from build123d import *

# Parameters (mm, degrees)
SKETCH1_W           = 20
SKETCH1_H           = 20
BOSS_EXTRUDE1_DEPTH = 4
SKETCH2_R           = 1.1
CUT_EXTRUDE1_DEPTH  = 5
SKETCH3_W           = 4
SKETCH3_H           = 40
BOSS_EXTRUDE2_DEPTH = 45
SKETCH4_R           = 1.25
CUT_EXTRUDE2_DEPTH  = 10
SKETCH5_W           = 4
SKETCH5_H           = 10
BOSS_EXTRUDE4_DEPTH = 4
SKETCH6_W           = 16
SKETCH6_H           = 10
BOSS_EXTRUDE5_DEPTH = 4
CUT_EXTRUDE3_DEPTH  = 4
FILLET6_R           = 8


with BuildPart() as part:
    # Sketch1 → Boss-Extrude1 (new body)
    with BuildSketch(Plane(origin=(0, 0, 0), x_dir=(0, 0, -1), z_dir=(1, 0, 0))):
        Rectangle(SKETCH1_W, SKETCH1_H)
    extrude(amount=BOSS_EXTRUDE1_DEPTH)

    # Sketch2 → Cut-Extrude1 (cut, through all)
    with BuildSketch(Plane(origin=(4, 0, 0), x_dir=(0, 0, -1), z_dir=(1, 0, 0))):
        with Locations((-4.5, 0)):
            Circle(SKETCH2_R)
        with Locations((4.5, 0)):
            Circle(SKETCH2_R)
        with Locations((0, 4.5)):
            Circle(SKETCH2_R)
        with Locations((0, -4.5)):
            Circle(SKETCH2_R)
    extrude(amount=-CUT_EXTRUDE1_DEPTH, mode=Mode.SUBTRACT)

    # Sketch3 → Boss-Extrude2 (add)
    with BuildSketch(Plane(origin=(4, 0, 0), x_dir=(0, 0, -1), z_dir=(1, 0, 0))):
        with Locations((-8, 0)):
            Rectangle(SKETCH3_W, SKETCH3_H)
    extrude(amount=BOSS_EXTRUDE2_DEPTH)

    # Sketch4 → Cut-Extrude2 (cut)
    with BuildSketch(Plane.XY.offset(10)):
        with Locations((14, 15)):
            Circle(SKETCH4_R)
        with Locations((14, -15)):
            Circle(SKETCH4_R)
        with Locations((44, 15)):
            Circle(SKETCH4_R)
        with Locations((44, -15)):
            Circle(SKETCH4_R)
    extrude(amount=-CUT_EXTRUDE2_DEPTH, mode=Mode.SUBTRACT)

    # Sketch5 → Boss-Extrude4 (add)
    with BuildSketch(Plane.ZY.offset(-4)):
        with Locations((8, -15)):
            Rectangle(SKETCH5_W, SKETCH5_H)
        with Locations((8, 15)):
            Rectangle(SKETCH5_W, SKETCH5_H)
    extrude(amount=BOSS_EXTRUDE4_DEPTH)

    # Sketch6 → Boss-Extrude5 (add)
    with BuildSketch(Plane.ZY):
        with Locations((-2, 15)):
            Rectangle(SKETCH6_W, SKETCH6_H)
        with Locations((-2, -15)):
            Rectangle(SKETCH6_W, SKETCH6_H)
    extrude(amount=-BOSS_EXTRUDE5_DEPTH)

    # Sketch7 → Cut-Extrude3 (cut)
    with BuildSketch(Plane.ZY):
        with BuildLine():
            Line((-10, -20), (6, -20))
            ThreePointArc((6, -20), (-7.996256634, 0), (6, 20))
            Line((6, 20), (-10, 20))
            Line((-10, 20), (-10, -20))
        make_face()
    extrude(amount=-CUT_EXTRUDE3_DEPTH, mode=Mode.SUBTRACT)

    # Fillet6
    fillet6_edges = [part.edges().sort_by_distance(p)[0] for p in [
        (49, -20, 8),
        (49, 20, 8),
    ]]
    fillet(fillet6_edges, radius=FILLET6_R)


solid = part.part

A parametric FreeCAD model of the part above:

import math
import FreeCAD as App
import Part
import Sketcher


def edges_at(feature, points):
    """Names of the edges that pass closest to the given points."""
    edges = feature.Shape.Edges
    near = lambda p: min(range(len(edges)), key=lambda i: edges[i].distToShape(Part.Vertex(*p))[0])
    return sorted({f"Edge{near(p) + 1}" for p in points})


def add_polygon(sketch, points):
    """Adds a closed chain of lines whose ends are joined by coincident constraints."""
    first, n = sketch.GeometryCount, len(points)
    for a, b in zip(points, points[1:] + points[:1]):
        sketch.addGeometry(Part.LineSegment(App.Vector(*a, 0), App.Vector(*b, 0)), False)
    for i in range(n):
        sketch.addConstraint(Sketcher.Constraint("Coincident", first + i, 2, first + (i + 1) % n, 1))

doc = App.newDocument("Part")
params = doc.addObject("Spreadsheet::Sheet", "Params")
for row, (alias, value) in enumerate([
    ("sketch1_width", "20 mm"),
    ("pad1_length", "4 mm"),
    ("sketch2_diameter", "2.2 mm"),
    ("sketch3_width", "40 mm"),
    ("sketch3_height", "4 mm"),
    ("pad2_length", "45 mm"),
    ("sketch4_diameter", "2.5 mm"),
    ("pocket2_length", "10 mm"),
    ("sketch5_width", "10 mm"),
    ("sketch5_height", "4 mm"),
    ("pad3_length", "4 mm"),
    ("sketch6_width", "10 mm"),
    ("sketch6_height", "16 mm"),
    ("pad4_length", "4 mm"),
    ("sketch7_width", "40 mm"),
    ("sketch7_height", "16 mm"),
    ("pocket3_length", "4 mm"),
    ("fillet_radius", "8 mm"),
], start=1):
    params.set(f"A{row}", alias)
    params.set(f"B{row}", "=" + value)
    params.setAlias(f"B{row}", alias)

body = doc.addObject("PartDesign::Body", "Body")

# Sketch on YZ plane
sketch1 = body.newObject("Sketcher::SketchObject", "Sketch")
sketch1.AttachmentSupport = (doc.getObject("YZ_Plane"), [""])
sketch1.MapMode = "FlatFace"
add_polygon(sketch1, [(10, 10), (-10, 10), (-10, -10), (10, -10)])  # lines 0-3
sketch1.addConstraint([
    Sketcher.Constraint("Horizontal", 0),
    Sketcher.Constraint("Vertical", 1),
    Sketcher.Constraint("Horizontal", 2),
    Sketcher.Constraint("Vertical", 3),
    Sketcher.Constraint("Symmetric", 0, 2, 2, 2, -1, 1),
    Sketcher.Constraint("Equal", 2, 1),
    Sketcher.Constraint("DistanceX", 0, 2, 0, 1, 20.0),
])
sketch1.setExpression("Constraints[10]", "Params.sketch1_width")
pad1 = body.newObject("PartDesign::Pad", "Pad")
pad1.Profile = sketch1
pad1.setExpression("Length", "Params.pad1_length")

# Sketch on YZ plane
sketch2 = body.newObject("Sketcher::SketchObject", "Sketch001")
sketch2.AttachmentSupport = (doc.getObject("YZ_Plane"), [""])
sketch2.MapMode = "FlatFace"
sketch2.AttachmentOffset = App.Placement(App.Vector(0, 0, 4), App.Rotation())
sketch2.addGeometry([
    Part.Circle(App.Vector(0, 4.5, 0), App.Vector(0, 0, 1), 1.1),
    Part.Circle(App.Vector(0, -4.5, 0), App.Vector(0, 0, 1), 1.1),
    Part.Circle(App.Vector(4.5, 0, 0), App.Vector(0, 0, 1), 1.1),
    Part.Circle(App.Vector(-4.5, 0, 0), App.Vector(0, 0, 1), 1.1),
], False)
sketch2.addConstraint([
    Sketcher.Constraint("Equal", 0, 1),
    Sketcher.Constraint("Equal", 1, 2),
    Sketcher.Constraint("Equal", 2, 3),
    Sketcher.Constraint("Symmetric", 0, 3, 1, 3, -1, 1),
    Sketcher.Constraint("Symmetric", 2, 3, 3, 3, -1, 1),
    Sketcher.Constraint("PointOnObject", 0, 3, -2),
    Sketcher.Constraint("PointOnObject", 2, 3, -1),
    Sketcher.Constraint("Diameter", 0, 2.2),
    Sketcher.Constraint("DistanceY", 1, 3, 0, 3, 9.0),
    Sketcher.Constraint("DistanceX", 3, 3, 2, 3, 9.0),
])
sketch2.setExpression("Constraints[7]", "Params.sketch2_diameter")
pocket1 = body.newObject("PartDesign::Pocket", "Pocket")
pocket1.Profile = sketch2
pocket1.Type = "ThroughAll"

# Sketch on YZ plane
sketch3 = body.newObject("Sketcher::SketchObject", "Sketch002")
sketch3.AttachmentSupport = (doc.getObject("YZ_Plane"), [""])
sketch3.MapMode = "FlatFace"
sketch3.AttachmentOffset = App.Placement(App.Vector(0, 0, 4), App.Rotation())
add_polygon(sketch3, [(20, 10), (-20, 10), (-20, 6), (20, 6)])  # lines 0-3
sketch3.addConstraint([
    Sketcher.Constraint("Horizontal", 0),
    Sketcher.Constraint("Vertical", 1),
    Sketcher.Constraint("Horizontal", 2),
    Sketcher.Constraint("Vertical", 3),
    Sketcher.Constraint("DistanceX", 0, 2, 0, 1, 40.0),
    Sketcher.Constraint("DistanceY", 1, 2, 1, 1, 4.0),
    Sketcher.Constraint("DistanceX", 0, 2, -1, 1, 20.0),
    Sketcher.Constraint("DistanceY", -1, 1, 0, 2, 10.0),
])
sketch3.setExpression("Constraints[8]", "Params.sketch3_width")
sketch3.setExpression("Constraints[9]", "Params.sketch3_height")
pad2 = body.newObject("PartDesign::Pad", "Pad001")
pad2.Profile = sketch3
pad2.setExpression("Length", "Params.pad2_length")

# Sketch on XY plane
sketch4 = body.newObject("Sketcher::SketchObject", "Sketch003")
sketch4.AttachmentSupport = (doc.getObject("XY_Plane"), [""])
sketch4.MapMode = "FlatFace"
sketch4.AttachmentOffset = App.Placement(App.Vector(0, 0, 10), App.Rotation())
sketch4.addGeometry([
    Part.Circle(App.Vector(14, 15, 0), App.Vector(0, 0, 1), 1.25),
    Part.Circle(App.Vector(14, -15, 0), App.Vector(0, 0, 1), 1.25),
    Part.Circle(App.Vector(44, 15, 0), App.Vector(0, 0, 1), 1.25),
    Part.Circle(App.Vector(44, -15, 0), App.Vector(0, 0, 1), 1.25),
], False)
sketch4.addConstraint([
    Sketcher.Constraint("Equal", 0, 1),
    Sketcher.Constraint("Equal", 1, 2),
    Sketcher.Constraint("Equal", 2, 3),
    Sketcher.Constraint("Symmetric", 0, 3, 1, 3, -1),
    Sketcher.Constraint("Symmetric", 2, 3, 3, 3, -1),
    Sketcher.Constraint("Horizontal", 0, 3, 2, 3),
    Sketcher.Constraint("Diameter", 0, 2.5),
    Sketcher.Constraint("DistanceX", -1, 1, 0, 3, 14.0),
    Sketcher.Constraint("DistanceY", -1, 1, 0, 3, 15.0),
    Sketcher.Constraint("DistanceX", -1, 1, 2, 3, 44.0),
])
sketch4.setExpression("Constraints[6]", "Params.sketch4_diameter")
pocket2 = body.newObject("PartDesign::Pocket", "Pocket001")
pocket2.Profile = sketch4
pocket2.setExpression("Length", "Params.pocket2_length")

# Sketch on YZ plane
sketch5 = body.newObject("Sketcher::SketchObject", "Sketch004")
sketch5.AttachmentSupport = (doc.getObject("YZ_Plane"), [""])
sketch5.MapMode = "FlatFace"
sketch5.AttachmentOffset = App.Placement(App.Vector(0, 0, 4), App.Rotation())
add_polygon(sketch5, [(-10, 6), (-20, 6), (-20, 10), (-10, 10)])  # lines 0-3
add_polygon(sketch5, [(20, 6), (10, 6), (10, 10), (20, 10)])  # lines 4-7
sketch5.addConstraint([
    Sketcher.Constraint("Horizontal", 0),
    Sketcher.Constraint("Vertical", 1),
    Sketcher.Constraint("Horizontal", 2),
    Sketcher.Constraint("Vertical", 3),
    Sketcher.Constraint("Horizontal", 4),
    Sketcher.Constraint("Vertical", 5),
    Sketcher.Constraint("Horizontal", 6),
    Sketcher.Constraint("Vertical", 7),
    Sketcher.Constraint("Symmetric", 3, 2, 4, 2, -2),
    Sketcher.Constraint("Symmetric", 1, 2, 6, 2, -2),
    Sketcher.Constraint("DistanceX", 0, 2, 0, 1, 10.0),
    Sketcher.Constraint("DistanceY", 1, 1, 1, 2, 4.0),
    Sketcher.Constraint("DistanceX", 0, 2, -1, 1, 20.0),
    Sketcher.Constraint("DistanceY", -1, 1, 0, 2, 6.0),
])
sketch5.setExpression("Constraints[18]", "Params.sketch5_width")
sketch5.setExpression("Constraints[19]", "Params.sketch5_height")
pad3 = body.newObject("PartDesign::Pad", "Pad002")
pad3.Profile = sketch5
pad3.setExpression("Length", "Params.pad3_length")
pad3.Reversed = True

# Sketch on YZ plane
sketch6 = body.newObject("Sketcher::SketchObject", "Sketch005")
sketch6.AttachmentSupport = (doc.getObject("YZ_Plane"), [""])
sketch6.MapMode = "FlatFace"
add_polygon(sketch6, [(20, -10), (10, -10), (10, 6), (20, 6)])  # lines 0-3
add_polygon(sketch6, [(-10, -10), (-20, -10), (-20, 6), (-10, 6)])  # lines 4-7
sketch6.addConstraint([
    Sketcher.Constraint("Horizontal", 0),
    Sketcher.Constraint("Vertical", 1),
    Sketcher.Constraint("Horizontal", 2),
    Sketcher.Constraint("Vertical", 3),
    Sketcher.Constraint("Horizontal", 4),
    Sketcher.Constraint("Vertical", 5),
    Sketcher.Constraint("Horizontal", 6),
    Sketcher.Constraint("Vertical", 7),
    Sketcher.Constraint("Symmetric", 3, 2, 4, 2, -2),
    Sketcher.Constraint("Symmetric", 1, 2, 6, 2, -2),
    Sketcher.Constraint("DistanceX", 0, 2, 0, 1, 10.0),
    Sketcher.Constraint("DistanceY", 1, 1, 1, 2, 16.0),
    Sketcher.Constraint("DistanceX", -1, 1, 0, 2, 10.0),
    Sketcher.Constraint("DistanceY", 0, 2, -1, 1, 10.0),
])
sketch6.setExpression("Constraints[18]", "Params.sketch6_width")
sketch6.setExpression("Constraints[19]", "Params.sketch6_height")
pad4 = body.newObject("PartDesign::Pad", "Pad003")
pad4.Profile = sketch6
pad4.setExpression("Length", "Params.pad4_length")

# Sketch on YZ plane
sketch7 = body.newObject("Sketcher::SketchObject", "Sketch006")
sketch7.AttachmentSupport = (doc.getObject("YZ_Plane"), [""])
sketch7.MapMode = "FlatFace"
sketch7.addGeometry([
    Part.LineSegment(App.Vector(-20, -10, 0), App.Vector(-20, 6, 0)),
    Part.ArcOfCircle(Part.Circle(App.Vector(0, 13.291407, 0), App.Vector(0, 0, 1), 21.287663), math.radians(-159.969645), math.radians(-20.030355)),
    Part.LineSegment(App.Vector(20, 6, 0), App.Vector(20, -10, 0)),
    Part.LineSegment(App.Vector(20, -10, 0), App.Vector(-20, -10, 0)),
], False)
sketch7.addConstraint([
    Sketcher.Constraint("Coincident", 0, 2, 1, 1),
    Sketcher.Constraint("Coincident", 1, 2, 2, 1),
    Sketcher.Constraint("Coincident", 2, 2, 3, 1),
    Sketcher.Constraint("Coincident", 3, 2, 0, 1),
    Sketcher.Constraint("Vertical", 0),
    Sketcher.Constraint("Vertical", 2),
    Sketcher.Constraint("Horizontal", 3),
    Sketcher.Constraint("Symmetric", 0, 2, 1, 2, -2),
    Sketcher.Constraint("DistanceX", 3, 2, 3, 1, 40.0),
    Sketcher.Constraint("DistanceY", 0, 1, 0, 2, 16.0),
    Sketcher.Constraint("DistanceY", -1, 1, 0, 2, 6.0),
    Sketcher.Constraint("Radius", 1, 21.287663),
])
sketch7.setExpression("Constraints[8]", "Params.sketch7_width")
sketch7.setExpression("Constraints[9]", "Params.sketch7_height")
pocket3 = body.newObject("PartDesign::Pocket", "Pocket002")
pocket3.Profile = sketch7
pocket3.setExpression("Length", "Params.pocket3_length")
pocket3.Reversed = True
doc.recompute()

fillet = body.newObject("PartDesign::Fillet", "Fillet")
fillet.Base = (pocket3, edges_at(pocket3, [(49, -20, 8), (49, 20, 8)]))
fillet.setExpression("Radius", "Params.fillet_radius")

doc.recompute()
